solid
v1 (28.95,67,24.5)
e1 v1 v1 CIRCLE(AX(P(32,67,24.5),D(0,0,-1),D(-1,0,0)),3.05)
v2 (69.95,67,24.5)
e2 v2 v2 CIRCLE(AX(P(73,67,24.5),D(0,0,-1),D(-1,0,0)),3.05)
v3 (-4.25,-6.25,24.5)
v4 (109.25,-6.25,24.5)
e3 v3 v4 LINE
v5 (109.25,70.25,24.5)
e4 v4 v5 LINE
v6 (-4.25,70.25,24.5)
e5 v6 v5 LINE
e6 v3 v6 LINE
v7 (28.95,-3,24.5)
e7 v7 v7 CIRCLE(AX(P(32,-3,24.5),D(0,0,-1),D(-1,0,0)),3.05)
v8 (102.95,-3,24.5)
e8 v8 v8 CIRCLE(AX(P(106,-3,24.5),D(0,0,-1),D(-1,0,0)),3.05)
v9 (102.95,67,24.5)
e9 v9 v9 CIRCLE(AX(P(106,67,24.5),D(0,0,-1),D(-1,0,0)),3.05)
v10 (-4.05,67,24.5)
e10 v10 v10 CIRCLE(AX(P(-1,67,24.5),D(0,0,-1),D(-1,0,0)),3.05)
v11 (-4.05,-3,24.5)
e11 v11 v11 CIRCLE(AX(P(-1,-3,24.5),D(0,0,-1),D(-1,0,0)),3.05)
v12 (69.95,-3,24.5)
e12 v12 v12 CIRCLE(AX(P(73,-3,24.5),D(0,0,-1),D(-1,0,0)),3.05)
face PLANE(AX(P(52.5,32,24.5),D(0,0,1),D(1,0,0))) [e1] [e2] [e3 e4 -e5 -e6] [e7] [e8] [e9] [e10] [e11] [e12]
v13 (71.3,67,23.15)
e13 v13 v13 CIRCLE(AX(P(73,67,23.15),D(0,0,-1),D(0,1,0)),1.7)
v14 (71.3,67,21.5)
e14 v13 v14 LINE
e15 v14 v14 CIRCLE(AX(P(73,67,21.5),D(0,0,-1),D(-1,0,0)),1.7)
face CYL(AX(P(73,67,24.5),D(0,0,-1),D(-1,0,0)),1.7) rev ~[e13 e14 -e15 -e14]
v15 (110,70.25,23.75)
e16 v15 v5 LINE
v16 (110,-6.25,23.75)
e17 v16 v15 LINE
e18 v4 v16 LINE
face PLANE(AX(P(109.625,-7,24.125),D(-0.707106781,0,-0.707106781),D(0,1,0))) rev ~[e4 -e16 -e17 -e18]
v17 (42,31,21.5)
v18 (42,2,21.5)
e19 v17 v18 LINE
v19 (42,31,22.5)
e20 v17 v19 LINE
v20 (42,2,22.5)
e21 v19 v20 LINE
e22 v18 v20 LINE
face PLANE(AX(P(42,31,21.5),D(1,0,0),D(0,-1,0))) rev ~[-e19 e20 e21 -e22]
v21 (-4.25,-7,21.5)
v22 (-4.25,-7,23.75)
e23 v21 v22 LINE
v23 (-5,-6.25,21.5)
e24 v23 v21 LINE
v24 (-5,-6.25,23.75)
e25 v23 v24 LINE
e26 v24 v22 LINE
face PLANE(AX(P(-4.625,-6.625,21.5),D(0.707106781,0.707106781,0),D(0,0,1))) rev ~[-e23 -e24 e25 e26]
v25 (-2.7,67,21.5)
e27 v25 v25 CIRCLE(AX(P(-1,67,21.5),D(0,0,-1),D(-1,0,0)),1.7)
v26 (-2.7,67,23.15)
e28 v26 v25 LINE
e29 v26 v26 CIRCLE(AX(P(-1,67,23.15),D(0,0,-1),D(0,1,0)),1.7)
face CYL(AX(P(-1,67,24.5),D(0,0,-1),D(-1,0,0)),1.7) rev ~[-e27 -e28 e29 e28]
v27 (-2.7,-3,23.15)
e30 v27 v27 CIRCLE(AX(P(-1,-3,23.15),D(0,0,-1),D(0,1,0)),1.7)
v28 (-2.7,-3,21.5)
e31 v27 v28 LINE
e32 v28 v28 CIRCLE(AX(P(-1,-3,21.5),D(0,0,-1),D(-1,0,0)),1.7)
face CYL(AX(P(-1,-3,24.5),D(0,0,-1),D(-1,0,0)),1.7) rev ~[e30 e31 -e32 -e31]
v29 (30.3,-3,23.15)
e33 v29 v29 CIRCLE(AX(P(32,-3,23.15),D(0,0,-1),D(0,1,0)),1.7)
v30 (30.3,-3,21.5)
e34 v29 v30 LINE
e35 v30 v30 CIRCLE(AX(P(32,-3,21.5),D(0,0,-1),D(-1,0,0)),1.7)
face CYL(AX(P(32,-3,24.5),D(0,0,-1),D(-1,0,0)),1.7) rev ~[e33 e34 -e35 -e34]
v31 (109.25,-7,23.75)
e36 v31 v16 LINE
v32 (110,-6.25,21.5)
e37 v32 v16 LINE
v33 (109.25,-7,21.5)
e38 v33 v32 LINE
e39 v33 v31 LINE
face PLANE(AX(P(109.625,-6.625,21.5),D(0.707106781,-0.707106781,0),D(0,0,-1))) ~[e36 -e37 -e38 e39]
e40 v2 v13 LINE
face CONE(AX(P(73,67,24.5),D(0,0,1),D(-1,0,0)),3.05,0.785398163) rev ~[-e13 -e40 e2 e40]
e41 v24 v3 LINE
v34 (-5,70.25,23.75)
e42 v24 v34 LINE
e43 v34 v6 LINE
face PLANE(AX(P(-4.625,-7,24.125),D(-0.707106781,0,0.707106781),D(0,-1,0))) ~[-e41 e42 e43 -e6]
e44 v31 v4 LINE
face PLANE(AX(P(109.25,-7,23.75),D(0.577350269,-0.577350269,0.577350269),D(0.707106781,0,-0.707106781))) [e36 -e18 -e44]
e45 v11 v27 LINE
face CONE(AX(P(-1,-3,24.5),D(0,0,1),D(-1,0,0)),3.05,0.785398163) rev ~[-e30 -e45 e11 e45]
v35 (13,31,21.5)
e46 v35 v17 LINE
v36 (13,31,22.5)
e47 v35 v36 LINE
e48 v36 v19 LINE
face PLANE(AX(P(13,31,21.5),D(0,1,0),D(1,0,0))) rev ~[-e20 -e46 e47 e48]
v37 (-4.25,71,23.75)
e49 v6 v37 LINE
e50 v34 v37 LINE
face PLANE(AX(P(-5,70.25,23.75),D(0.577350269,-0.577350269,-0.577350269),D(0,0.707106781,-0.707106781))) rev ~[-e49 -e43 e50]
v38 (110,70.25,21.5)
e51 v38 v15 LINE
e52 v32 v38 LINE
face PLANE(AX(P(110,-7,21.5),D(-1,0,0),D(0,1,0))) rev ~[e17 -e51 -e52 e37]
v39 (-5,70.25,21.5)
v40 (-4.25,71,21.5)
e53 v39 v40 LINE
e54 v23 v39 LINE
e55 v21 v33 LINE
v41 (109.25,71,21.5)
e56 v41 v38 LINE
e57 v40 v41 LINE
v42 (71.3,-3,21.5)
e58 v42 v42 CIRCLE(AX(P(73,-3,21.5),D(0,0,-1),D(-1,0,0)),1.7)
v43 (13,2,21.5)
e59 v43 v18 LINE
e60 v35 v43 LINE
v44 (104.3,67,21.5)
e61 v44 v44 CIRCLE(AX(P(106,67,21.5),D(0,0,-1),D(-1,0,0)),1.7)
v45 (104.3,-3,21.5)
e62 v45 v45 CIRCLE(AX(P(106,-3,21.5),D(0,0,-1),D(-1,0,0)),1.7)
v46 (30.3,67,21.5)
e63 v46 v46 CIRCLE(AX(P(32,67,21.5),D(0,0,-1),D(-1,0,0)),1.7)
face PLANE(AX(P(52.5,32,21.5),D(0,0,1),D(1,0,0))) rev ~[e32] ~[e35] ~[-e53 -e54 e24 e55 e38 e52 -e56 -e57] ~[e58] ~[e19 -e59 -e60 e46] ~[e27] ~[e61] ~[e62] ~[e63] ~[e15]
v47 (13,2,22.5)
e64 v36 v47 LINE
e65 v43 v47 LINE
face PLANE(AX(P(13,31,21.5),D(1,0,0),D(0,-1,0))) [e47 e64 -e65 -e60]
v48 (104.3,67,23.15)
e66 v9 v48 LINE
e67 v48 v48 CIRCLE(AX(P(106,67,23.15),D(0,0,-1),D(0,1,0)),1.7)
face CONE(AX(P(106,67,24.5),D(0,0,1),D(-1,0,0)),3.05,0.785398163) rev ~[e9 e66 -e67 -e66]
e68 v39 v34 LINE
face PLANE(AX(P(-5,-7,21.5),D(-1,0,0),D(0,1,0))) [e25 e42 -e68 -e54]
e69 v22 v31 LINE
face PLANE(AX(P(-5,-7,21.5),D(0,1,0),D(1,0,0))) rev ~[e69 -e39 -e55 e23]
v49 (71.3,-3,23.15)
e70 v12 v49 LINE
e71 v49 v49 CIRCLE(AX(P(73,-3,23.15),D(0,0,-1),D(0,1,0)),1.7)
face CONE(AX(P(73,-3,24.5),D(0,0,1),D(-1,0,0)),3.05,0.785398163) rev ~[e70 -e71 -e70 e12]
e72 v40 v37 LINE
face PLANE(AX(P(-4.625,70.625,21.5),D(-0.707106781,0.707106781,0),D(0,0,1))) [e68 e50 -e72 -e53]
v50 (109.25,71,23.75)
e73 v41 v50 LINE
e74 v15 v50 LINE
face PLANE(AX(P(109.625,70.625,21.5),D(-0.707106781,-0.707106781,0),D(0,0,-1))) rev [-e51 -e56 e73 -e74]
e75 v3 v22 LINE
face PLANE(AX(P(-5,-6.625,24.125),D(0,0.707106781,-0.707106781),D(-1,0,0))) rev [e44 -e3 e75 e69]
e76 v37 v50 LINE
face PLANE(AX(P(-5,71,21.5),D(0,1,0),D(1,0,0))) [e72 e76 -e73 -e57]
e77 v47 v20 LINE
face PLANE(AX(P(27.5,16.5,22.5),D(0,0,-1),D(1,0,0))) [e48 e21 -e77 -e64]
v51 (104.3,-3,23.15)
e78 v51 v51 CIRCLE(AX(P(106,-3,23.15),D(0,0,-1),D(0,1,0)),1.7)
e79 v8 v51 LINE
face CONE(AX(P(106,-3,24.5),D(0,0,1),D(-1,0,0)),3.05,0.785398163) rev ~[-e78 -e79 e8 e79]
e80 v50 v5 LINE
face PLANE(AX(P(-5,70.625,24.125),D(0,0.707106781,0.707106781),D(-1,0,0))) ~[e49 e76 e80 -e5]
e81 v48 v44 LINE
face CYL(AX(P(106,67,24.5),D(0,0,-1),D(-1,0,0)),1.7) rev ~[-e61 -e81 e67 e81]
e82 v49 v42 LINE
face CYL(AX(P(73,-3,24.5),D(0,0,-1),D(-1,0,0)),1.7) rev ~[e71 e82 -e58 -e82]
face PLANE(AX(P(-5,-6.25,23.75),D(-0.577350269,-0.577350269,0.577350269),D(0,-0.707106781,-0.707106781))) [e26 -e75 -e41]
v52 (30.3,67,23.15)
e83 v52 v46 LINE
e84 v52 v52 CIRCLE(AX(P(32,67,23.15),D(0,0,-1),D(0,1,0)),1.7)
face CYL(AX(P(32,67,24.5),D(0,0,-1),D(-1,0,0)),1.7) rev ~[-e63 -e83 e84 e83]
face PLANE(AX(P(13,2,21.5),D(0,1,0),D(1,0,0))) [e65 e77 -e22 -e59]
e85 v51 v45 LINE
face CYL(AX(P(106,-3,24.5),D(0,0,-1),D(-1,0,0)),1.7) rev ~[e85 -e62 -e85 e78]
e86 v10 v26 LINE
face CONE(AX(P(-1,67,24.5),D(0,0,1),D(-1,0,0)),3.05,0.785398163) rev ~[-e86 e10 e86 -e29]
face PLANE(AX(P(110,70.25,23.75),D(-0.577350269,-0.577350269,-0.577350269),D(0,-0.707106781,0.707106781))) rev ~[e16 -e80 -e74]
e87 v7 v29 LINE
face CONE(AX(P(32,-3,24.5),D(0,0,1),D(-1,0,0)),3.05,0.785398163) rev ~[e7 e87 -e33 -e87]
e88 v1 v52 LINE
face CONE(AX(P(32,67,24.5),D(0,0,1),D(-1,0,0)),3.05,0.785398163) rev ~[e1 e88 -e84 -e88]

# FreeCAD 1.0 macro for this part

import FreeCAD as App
import Part
import Sketcher


def edges_at(feature, points):
    """Names of the edges that pass closest to the given points."""
    edges = feature.Shape.Edges
    near = lambda p: min(range(len(edges)), key=lambda i: edges[i].distToShape(Part.Vertex(*p))[0])
    return sorted({f"Edge{near(p) + 1}" for p in points})

doc = App.newDocument("Part")
params = doc.addObject("Spreadsheet::Sheet", "Params")
for row, (alias, value) in enumerate([
    ("sketch1_width", "115 mm"),
    ("sketch1_height", "78 mm"),
    ("pad1_length", "3 mm"),
    ("sketch2_diameter", "3.4 mm"),
    ("hole_diameter", "3.4 mm"),
    ("hole_depth", "5 mm"),
    ("hole_csink_diameter", "6.1 mm"),
    ("sketch3_width", "29 mm"),
    ("pocket1_length", "1 mm"),
    ("chamfer_size", "0.75 mm"),
], start=1):
    params.set(f"A{row}", alias)
    params.set(f"B{row}", "=" + value)
    params.setAlias(f"B{row}", alias)

body = doc.addObject("PartDesign::Body", "Body")

# Sketch on XY plane
sketch1 = body.newObject("Sketcher::SketchObject", "Sketch")
sketch1.AttachmentSupport = (doc.getObject("XY_Plane"), [""])
sketch1.MapMode = "FlatFace"
sketch1.AttachmentOffset = App.Placement(App.Vector(0, 0, 24), App.Rotation())
sketch1.addGeometry(Part.LineSegment(App.Vector(-5, 71, 0), App.Vector(-5, -7, 0)), False)
sketch1.addGeometry(Part.LineSegment(App.Vector(-5, -7, 0), App.Vector(110, -7, 0)), False)
sketch1.addGeometry(Part.LineSegment(App.Vector(110, -7, 0), App.Vector(110, 71, 0)), False)
sketch1.addGeometry(Part.LineSegment(App.Vector(110, 71, 0), App.Vector(-5, 71, 0)), False)
sketch1.addConstraint(Sketcher.Constraint("Coincident", 0, 2, 1, 1))
sketch1.addConstraint(Sketcher.Constraint("Coincident", 1, 2, 2, 1))
sketch1.addConstraint(Sketcher.Constraint("Coincident", 2, 2, 3, 1))
sketch1.addConstraint(Sketcher.Constraint("Coincident", 3, 2, 0, 1))
sketch1.addConstraint(Sketcher.Constraint("Vertical", 0))
sketch1.addConstraint(Sketcher.Constraint("Horizontal", 1))
sketch1.addConstraint(Sketcher.Constraint("Vertical", 2))
sketch1.addConstraint(Sketcher.Constraint("Horizontal", 3))
sketch1.addConstraint(Sketcher.Constraint("DistanceX", 1, 1, 1, 2, 115.0))
sketch1.addConstraint(Sketcher.Constraint("DistanceY", 0, 2, 0, 1, 78.0))
sketch1.addConstraint(Sketcher.Constraint("DistanceX", 0, 2, -1, 1, 5.0))
sketch1.addConstraint(Sketcher.Constraint("DistanceY", 0, 2, -1, 1, 7.0))
sketch1.setExpression("Constraints[8]", "Params.sketch1_width")
sketch1.setExpression("Constraints[9]", "Params.sketch1_height")
pad1 = body.newObject("PartDesign::Pad", "Pad")
pad1.Profile = sketch1
pad1.setExpression("Length", "Params.pad1_length")

# Sketch on XY plane
sketch2 = body.newObject("Sketcher::SketchObject", "Sketch001")
sketch2.AttachmentSupport = (doc.getObject("XY_Plane"), [""])
sketch2.MapMode = "FlatFace"
sketch2.AttachmentOffset = App.Placement(App.Vector(0, 0, 27), App.Rotation())
sketch2.addGeometry(Part.Circle(App.Vector(-1, 67, 0), App.Vector(0, 0, 1), 1.7), False)
sketch2.addGeometry(Part.Circle(App.Vector(106, 67, 0), App.Vector(0, 0, 1), 1.7), False)
sketch2.addGeometry(Part.Circle(App.Vector(106, -3, 0), App.Vector(0, 0, 1), 1.7), False)
sketch2.addGeometry(Part.Circle(App.Vector(-1, -3, 0), App.Vector(0, 0, 1), 1.7), False)
sketch2.addGeometry(Part.Circle(App.Vector(32, 67, 0), App.Vector(0, 0, 1), 1.7), False)
sketch2.addGeometry(Part.Circle(App.Vector(73, -3, 0), App.Vector(0, 0, 1), 1.7), False)
sketch2.addGeometry(Part.Circle(App.Vector(32, -3, 0), App.Vector(0, 0, 1), 1.7), False)
sketch2.addGeometry(Part.Circle(App.Vector(73, 67, 0), App.Vector(0, 0, 1), 1.7), False)
sketch2.addConstraint(Sketcher.Constraint("Equal", 0, 1))
sketch2.addConstraint(Sketcher.Constraint("Equal", 1, 2))
sketch2.addConstraint(Sketcher.Constraint("Equal", 2, 3))
sketch2.addConstraint(Sketcher.Constraint("Equal", 3, 4))
sketch2.addConstraint(Sketcher.Constraint("Equal", 4, 5))
sketch2.addConstraint(Sketcher.Constraint("Equal", 5, 6))
sketch2.addConstraint(Sketcher.Constraint("Equal", 6, 7))
sketch2.addConstraint(Sketcher.Constraint("Horizontal", 0, 3, 1, 3))
sketch2.addConstraint(Sketcher.Constraint("Horizontal", 2, 3, 3, 3))
sketch2.addConstraint(Sketcher.Constraint("Horizontal", 1, 3, 4, 3))
sketch2.addConstraint(Sketcher.Constraint("Horizontal", 3, 3, 5, 3))
sketch2.addConstraint(Sketcher.Constraint("Horizontal", 5, 3, 6, 3))
sketch2.addConstraint(Sketcher.Constraint("Horizontal", 4, 3, 7, 3))
sketch2.addConstraint(Sketcher.Constraint("Vertical", 1, 3, 2, 3))
sketch2.addConstraint(Sketcher.Constraint("Vertical", 0, 3, 3, 3))
sketch2.addConstraint(Sketcher.Constraint("Vertical", 4, 3, 6, 3))
sketch2.addConstraint(Sketcher.Constraint("Vertical", 5, 3, 7, 3))
sketch2.addConstraint(Sketcher.Constraint("Diameter", 0, 3.4))
sketch2.addConstraint(Sketcher.Constraint("DistanceX", 0, 3, -1, 1, 1.0))
sketch2.addConstraint(Sketcher.Constraint("DistanceY", -1, 1, 0, 3, 67.0))
sketch2.addConstraint(Sketcher.Constraint("DistanceX", -1, 1, 1, 3, 106.0))
sketch2.addConstraint(Sketcher.Constraint("DistanceY", 2, 3, -1, 1, 3.0))
sketch2.addConstraint(Sketcher.Constraint("DistanceX", -1, 1, 4, 3, 32.0))
sketch2.addConstraint(Sketcher.Constraint("DistanceX", -1, 1, 5, 3, 73.0))
sketch2.setExpression("Constraints[17]", "Params.sketch2_diameter")
doc.recompute()
hole = body.newObject("PartDesign::Hole", "Hole")
hole.Profile = sketch2
hole.ThreadType = "None"
hole.setExpression("Diameter", "Params.hole_diameter")
hole.DepthType = "Dimension"
hole.setExpression("Depth", "Params.hole_depth")
hole.DrillPoint = "Flat"
hole.HoleCutType = "Countersink"
hole.setExpression("HoleCutDiameter", "Params.hole_csink_diameter")
hole.HoleCutCountersinkAngle = 90

# Sketch on XY plane
sketch3 = body.newObject("Sketcher::SketchObject", "Sketch002")
sketch3.AttachmentSupport = (doc.getObject("XY_Plane"), [""])
sketch3.MapMode = "FlatFace"
sketch3.AttachmentOffset = App.Placement(App.Vector(0, 0, 24), App.Rotation())
sketch3.addGeometry(Part.LineSegment(App.Vector(13, 2, 0), App.Vector(13, 31, 0)), False)
sketch3.addGeometry(Part.LineSegment(App.Vector(13, 31, 0), App.Vector(42, 31, 0)), False)
sketch3.addGeometry(Part.LineSegment(App.Vector(42, 31, 0), App.Vector(42, 2, 0)), False)
sketch3.addGeometry(Part.LineSegment(App.Vector(42, 2, 0), App.Vector(13, 2, 0)), False)
sketch3.addConstraint(Sketcher.Constraint("Coincident", 0, 2, 1, 1))
sketch3.addConstraint(Sketcher.Constraint("Coincident", 1, 2, 2, 1))
sketch3.addConstraint(Sketcher.Constraint("Coincident", 2, 2, 3, 1))
sketch3.addConstraint(Sketcher.Constraint("Coincident", 3, 2, 0, 1))
sketch3.addConstraint(Sketcher.Constraint("Vertical", 0))
sketch3.addConstraint(Sketcher.Constraint("Horizontal", 1))
sketch3.addConstraint(Sketcher.Constraint("Vertical", 2))
sketch3.addConstraint(Sketcher.Constraint("Horizontal", 3))
sketch3.addConstraint(Sketcher.Constraint("Equal", 3, 0))
sketch3.addConstraint(Sketcher.Constraint("DistanceX", 1, 1, 1, 2, 29.0))
sketch3.addConstraint(Sketcher.Constraint("DistanceX", -1, 1, 0, 2, 13.0))
sketch3.addConstraint(Sketcher.Constraint("DistanceY", -1, 1, 0, 2, 31.0))
sketch3.setExpression("Constraints[9]", "Params.sketch3_width")
pocket1 = body.newObject("PartDesign::Pocket", "Pocket")
pocket1.Profile = sketch3
pocket1.setExpression("Length", "Params.pocket1_length")
pocket1.Reversed = True
doc.recompute()

chamfer = body.newObject("PartDesign::Chamfer", "Chamfer")
chamfer.Base = (pocket1, edges_at(pocket1, [
    (52.5, 71, 27),
    (110, 71, 25.5),
    (110, 32, 27),
    (52.5, -7, 27),
    (110, -7, 25.5),
    (-5, 32, 27),
    (-5, 71, 25.5),
    (-5, -7, 25.5),
]))
chamfer.setExpression("Size", "Params.chamfer_size")
body2 = doc.addObject("PartDesign::Body", "Body001")
doc.recompute()

body.Placement = App.Placement(App.Vector(0, 0, -2.5), App.Rotation(App.Vector(0, 0, 1), 0))
boolean = body2.newObject("PartDesign::Boolean", "Boolean")
boolean.Type = "Fuse"
boolean.addObjects([body])

doc.recompute()
